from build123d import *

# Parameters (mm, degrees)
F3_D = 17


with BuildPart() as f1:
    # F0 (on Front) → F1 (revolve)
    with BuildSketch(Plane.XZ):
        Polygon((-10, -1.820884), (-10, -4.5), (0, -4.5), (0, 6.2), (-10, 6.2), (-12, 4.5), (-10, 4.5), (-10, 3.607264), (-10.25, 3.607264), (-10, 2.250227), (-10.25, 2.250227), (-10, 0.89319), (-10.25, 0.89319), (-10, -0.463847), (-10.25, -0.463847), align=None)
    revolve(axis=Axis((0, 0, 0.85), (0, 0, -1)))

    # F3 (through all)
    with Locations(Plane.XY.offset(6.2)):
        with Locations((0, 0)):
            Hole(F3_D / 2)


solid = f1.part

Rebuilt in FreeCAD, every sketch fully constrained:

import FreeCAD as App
import Part
import Sketcher


def add_polygon(sketch, points):
    """Adds a closed chain of lines whose ends are joined by coincident constraints."""
    first, n = sketch.GeometryCount, len(points)
    for a, b in zip(points, points[1:] + points[:1]):
        sketch.addGeometry(Part.LineSegment(App.Vector(*a, 0), App.Vector(*b, 0)), False)
    for i in range(n):
        sketch.addConstraint(Sketcher.Constraint("Coincident", first + i, 2, first + (i + 1) % n, 1))

doc = App.newDocument("Part")
body = doc.addObject("PartDesign::Body", "Body")

# Sketch on XZ plane
sketch1 = body.newObject("Sketcher::SketchObject", "Sketch")
sketch1.AttachmentSupport = (doc.getObject("XZ_Plane"), [""])
sketch1.MapMode = "FlatFace"
add_polygon(sketch1, [(-10, -1.820884), (-10, -4.5), (0, -4.5), (0, 6.2), (-10, 6.2), (-12, 4.5), (-10, 4.5), (-10, 3.607264), (-10.25, 3.607264), (-10, 2.250227), (-10.25, 2.250227), (-10, 0.89319), (-10.25, 0.89319), (-10, -0.463847), (-10.25, -0.463847)])  # lines 0-14
sketch1.addConstraint([
    Sketcher.Constraint("Vertical", 0),
    Sketcher.Constraint("Horizontal", 1),
    Sketcher.Constraint("Vertical", 2),
    Sketcher.Constraint("Horizontal", 3),
    Sketcher.Constraint("Horizontal", 5),
    Sketcher.Constraint("Vertical", 6),
    Sketcher.Constraint("Horizontal", 7),
    Sketcher.Constraint("Horizontal", 9),
    Sketcher.Constraint("Horizontal", 11),
    Sketcher.Constraint("Horizontal", 13),
    Sketcher.Constraint("Symmetric", 0, 2, 5, 2, -1),
    Sketcher.Constraint("PointOnObject", 1, 2, -2),
    Sketcher.Constraint("Parallel", 8, 10),
    Sketcher.Constraint("Parallel", 10, 12),
    Sketcher.Constraint("Parallel", 12, 14),
    Sketcher.Constraint("Vertical", 0, 2, 3, 2),
    Sketcher.Constraint("Vertical", 6, 2, 8, 2),
    Sketcher.Constraint("Vertical", 7, 2, 9, 2),
    Sketcher.Constraint("Vertical", 8, 2, 10, 2),
    Sketcher.Constraint("Vertical", 9, 2, 11, 2),
    Sketcher.Constraint("Vertical", 10, 2, 12, 2),
    Sketcher.Constraint("Vertical", 11, 2, 13, 2),
    Sketcher.Constraint("DistanceX", 1, 1, 1, 2, 10.0),
    Sketcher.Constraint("DistanceX", 5, 1, 5, 2, 2.0),
    Sketcher.Constraint("DistanceY", 2, 1, 2, 2, 10.7),
    Sketcher.Constraint("DistanceY", 0, 2, 4, 2, 9.0),
    Sketcher.Constraint("DistanceX", 7, 2, 7, 1, 0.25),
    Sketcher.Constraint("DistanceY", 0, 2, 0, 1, 2.679116),
    Sketcher.Constraint("DistanceY", 6, 2, 6, 1, 0.892736),
])
revolution = body.newObject("PartDesign::Revolution", "Revolution")
revolution.Profile = sketch1
revolution.ReferenceAxis = (sketch1, ["V_Axis"])
revolution.Angle = 360

# Sketch on XY plane
sketch2 = body.newObject("Sketcher::SketchObject", "Sketch001")
sketch2.AttachmentSupport = (doc.getObject("XY_Plane"), [""])
sketch2.MapMode = "FlatFace"
sketch2.AttachmentOffset = App.Placement(App.Vector(0, 0, 6.2), App.Rotation())
sketch2.addGeometry(Part.Circle(App.Vector(0, 0, 0), App.Vector(0, 0, 1), 8.5), False)
sketch2.addConstraint([
    Sketcher.Constraint("Coincident", 0, 3, -1, 1),
    Sketcher.Constraint("Diameter", 0, 17.0),
])
doc.recompute()
hole = body.newObject("PartDesign::Hole", "Hole")
hole.Profile = sketch2
hole.ThreadType = "None"
hole.Diameter = 17
hole.DepthType = "ThroughAll"

doc.recompute()
